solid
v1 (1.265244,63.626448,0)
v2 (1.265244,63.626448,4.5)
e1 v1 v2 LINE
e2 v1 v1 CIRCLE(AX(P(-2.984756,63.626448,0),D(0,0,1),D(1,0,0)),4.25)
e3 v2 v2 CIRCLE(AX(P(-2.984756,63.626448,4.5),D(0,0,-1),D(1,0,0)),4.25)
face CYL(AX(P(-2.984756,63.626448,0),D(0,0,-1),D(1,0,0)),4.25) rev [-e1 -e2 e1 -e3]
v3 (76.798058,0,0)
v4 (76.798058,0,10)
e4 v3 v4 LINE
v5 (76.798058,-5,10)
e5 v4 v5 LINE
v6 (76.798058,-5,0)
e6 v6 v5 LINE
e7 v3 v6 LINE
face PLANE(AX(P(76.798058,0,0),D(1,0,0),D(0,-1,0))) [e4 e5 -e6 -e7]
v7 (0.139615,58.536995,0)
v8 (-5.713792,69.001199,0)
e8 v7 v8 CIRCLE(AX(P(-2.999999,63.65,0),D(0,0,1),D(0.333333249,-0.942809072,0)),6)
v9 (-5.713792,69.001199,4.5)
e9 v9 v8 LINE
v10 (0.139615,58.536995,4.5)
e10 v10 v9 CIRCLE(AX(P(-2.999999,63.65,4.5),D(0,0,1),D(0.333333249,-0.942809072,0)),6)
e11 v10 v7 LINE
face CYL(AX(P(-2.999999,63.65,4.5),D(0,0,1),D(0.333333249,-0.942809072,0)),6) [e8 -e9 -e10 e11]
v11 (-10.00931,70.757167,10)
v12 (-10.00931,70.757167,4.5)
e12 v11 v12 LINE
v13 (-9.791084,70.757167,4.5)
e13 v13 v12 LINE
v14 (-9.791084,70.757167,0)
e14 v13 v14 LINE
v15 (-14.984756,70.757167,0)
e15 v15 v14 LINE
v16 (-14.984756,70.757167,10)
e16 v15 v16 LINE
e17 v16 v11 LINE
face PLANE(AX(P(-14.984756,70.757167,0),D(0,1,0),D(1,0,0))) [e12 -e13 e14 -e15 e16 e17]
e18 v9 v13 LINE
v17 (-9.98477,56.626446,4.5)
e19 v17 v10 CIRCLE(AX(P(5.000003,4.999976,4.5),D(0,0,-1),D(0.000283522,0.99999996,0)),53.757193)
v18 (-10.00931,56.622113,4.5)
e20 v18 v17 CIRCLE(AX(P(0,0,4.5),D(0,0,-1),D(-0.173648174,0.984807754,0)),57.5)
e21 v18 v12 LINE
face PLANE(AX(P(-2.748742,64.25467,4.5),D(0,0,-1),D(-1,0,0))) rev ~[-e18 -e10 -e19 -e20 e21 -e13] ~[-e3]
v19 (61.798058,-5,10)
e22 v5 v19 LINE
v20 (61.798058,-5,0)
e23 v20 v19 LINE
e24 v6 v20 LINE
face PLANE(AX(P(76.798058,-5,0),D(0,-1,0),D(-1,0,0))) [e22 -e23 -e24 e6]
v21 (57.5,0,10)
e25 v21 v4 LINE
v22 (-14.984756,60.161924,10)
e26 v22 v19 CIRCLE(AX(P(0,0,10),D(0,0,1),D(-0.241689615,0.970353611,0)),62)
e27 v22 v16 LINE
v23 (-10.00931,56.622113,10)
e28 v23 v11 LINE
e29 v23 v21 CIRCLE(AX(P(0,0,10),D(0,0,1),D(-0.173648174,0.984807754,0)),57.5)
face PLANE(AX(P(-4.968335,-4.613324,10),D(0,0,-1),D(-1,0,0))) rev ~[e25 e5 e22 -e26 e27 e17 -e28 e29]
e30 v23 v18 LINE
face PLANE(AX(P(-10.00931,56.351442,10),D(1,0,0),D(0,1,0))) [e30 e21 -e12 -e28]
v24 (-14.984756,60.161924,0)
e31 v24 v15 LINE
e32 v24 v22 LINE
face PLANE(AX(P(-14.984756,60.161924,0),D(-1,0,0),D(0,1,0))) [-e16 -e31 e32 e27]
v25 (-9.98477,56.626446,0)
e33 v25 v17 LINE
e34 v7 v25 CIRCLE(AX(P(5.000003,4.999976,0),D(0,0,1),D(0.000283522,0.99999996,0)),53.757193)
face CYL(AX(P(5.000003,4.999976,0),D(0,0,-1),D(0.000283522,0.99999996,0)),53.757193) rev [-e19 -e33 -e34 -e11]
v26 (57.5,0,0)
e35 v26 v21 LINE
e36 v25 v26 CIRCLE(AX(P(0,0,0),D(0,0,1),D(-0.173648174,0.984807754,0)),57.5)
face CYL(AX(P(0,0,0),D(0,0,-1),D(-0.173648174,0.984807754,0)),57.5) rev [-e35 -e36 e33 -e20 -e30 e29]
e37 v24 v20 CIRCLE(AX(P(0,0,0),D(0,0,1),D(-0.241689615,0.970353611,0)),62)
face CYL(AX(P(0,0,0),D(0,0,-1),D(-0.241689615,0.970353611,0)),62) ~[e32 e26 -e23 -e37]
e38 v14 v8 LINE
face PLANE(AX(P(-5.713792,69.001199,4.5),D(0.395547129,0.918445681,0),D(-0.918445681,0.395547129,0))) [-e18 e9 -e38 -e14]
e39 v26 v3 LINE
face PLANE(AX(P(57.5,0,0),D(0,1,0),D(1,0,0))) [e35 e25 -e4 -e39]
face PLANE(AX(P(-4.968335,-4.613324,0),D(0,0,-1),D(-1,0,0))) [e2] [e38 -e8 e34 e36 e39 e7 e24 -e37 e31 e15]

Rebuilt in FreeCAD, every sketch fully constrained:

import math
import FreeCAD as App
import Part
import Sketcher

doc = App.newDocument("Part")
params = doc.addObject("Spreadsheet::Sheet", "Params")
for row, (alias, value) in enumerate([
    ("sketch1_radius", "62 mm"),
    ("sketch1_diameter", "8.5 mm"),
    ("sketch1_radius2", "57.5 mm"),
    ("sketch1_width", "20 mm"),
    ("sketch1_width2", "15 mm"),
    ("pad1_length", "10 mm"),
    ("sketch2_height", "12.5 mm"),
    ("pocket1_length", "5.5 mm"),
    ("sketch3_radius", "6 mm"),
    ("sketch3_width", "7 mm"),
    ("sketch3_width2", "17.5 mm"),
    ("sketch3_height", "13.5 mm"),
    ("sketch3_length", "6.3 mm"),
    ("pocket2_length", "5 mm"),
], start=1):
    params.set(f"A{row}", alias)
    params.set(f"B{row}", "=" + value)
    params.setAlias(f"B{row}", alias)

body = doc.addObject("PartDesign::Body", "Body")

# Sketch on XY plane
sketch1 = body.newObject("Sketcher::SketchObject", "Sketch")
sketch1.AttachmentSupport = (doc.getObject("XY_Plane"), [""])
sketch1.MapMode = "FlatFace"
sketch1.addGeometry([
    Part.ArcOfCircle(Part.Circle(App.Vector(0, 0, 0), App.Vector(0, 0, 1), 57.5), math.radians(100), math.radians(360)),  # 0
    Part.ArcOfCircle(Part.Circle(App.Vector(5.000003, 4.999976, 0), App.Vector(0, 0, 1), 53.757193), math.radians(89.983755), math.radians(106.185565)),  # 1
    Part.LineSegment(App.Vector(5.015244, 58.757167, 0), App.Vector(5.015244, 70.757167, 0)),  # 2
    Part.LineSegment(App.Vector(5.015244, 70.757167, 0), App.Vector(-14.984756, 70.757167, 0)),  # 3
    Part.LineSegment(App.Vector(-14.984756, 70.757167, 0), App.Vector(-14.984756, 60.161924, 0)),  # 4
    Part.ArcOfCircle(Part.Circle(App.Vector(0, 0, 0), App.Vector(0, 0, 1), 62), math.radians(103.986284), math.radians(355.374349)),  # 5
    Part.LineSegment(App.Vector(61.798058, -5, 0), App.Vector(76.798058, -5, 0)),  # 6
    Part.LineSegment(App.Vector(76.798058, -5, 0), App.Vector(76.798058, 0, 0)),  # 7
    Part.LineSegment(App.Vector(76.798058, 0, 0), App.Vector(57.5, 0, 0)),  # 8
    Part.Circle(App.Vector(-2.984756, 63.626448, 0), App.Vector(0, 0, 1), 4.25),  # 9
], False)
sketch1.addConstraint([
    Sketcher.Constraint("Coincident", 0, 1, 1, 2),
    Sketcher.Constraint("Coincident", 1, 1, 2, 1),
    Sketcher.Constraint("Coincident", 2, 2, 3, 1),
    Sketcher.Constraint("Coincident", 3, 2, 4, 1),
    Sketcher.Constraint("Coincident", 4, 2, 5, 1),
    Sketcher.Constraint("Coincident", 5, 2, 6, 1),
    Sketcher.Constraint("Coincident", 6, 2, 7, 1),
    Sketcher.Constraint("Coincident", 7, 2, 8, 1),
    Sketcher.Constraint("Coincident", 8, 2, 0, 2),
    Sketcher.Constraint("Vertical", 2),
    Sketcher.Constraint("Horizontal", 3),
    Sketcher.Constraint("Vertical", 4),
    Sketcher.Constraint("Horizontal", 6),
    Sketcher.Constraint("Vertical", 7),
    Sketcher.Constraint("Horizontal", 8),
    Sketcher.Constraint("Coincident", 0, 3, -1, 1),
    Sketcher.Constraint("Coincident", 5, 3, -1, 1),
    Sketcher.Constraint("PointOnObject", 7, 2, -1),
    Sketcher.Constraint("Radius", 5, 62.0),
    Sketcher.Constraint("Diameter", 9, 8.5),
    Sketcher.Constraint("Radius", 0, 57.5),
    Sketcher.Constraint("DistanceX", 3, 2, 3, 1, 20.0),
    Sketcher.Constraint("DistanceX", 6, 1, 6, 2, 15.0),
    Sketcher.Constraint("DistanceY", 2, 1, 2, 2, 12.0),
    Sketcher.Constraint("DistanceY", 7, 1, 7, 2, 5.0),
    Sketcher.Constraint("DistanceY", 0, 1, 9, 3, 7.000002),
    Sketcher.Constraint("DistanceX", 9, 3, 1, 1, 8.0),
    Sketcher.Constraint("Radius", 1, 53.757193),
    Sketcher.Constraint("DistanceY", 4, 2, 4, 1, 10.595243),
    Sketcher.Constraint("DistanceY", -1, 1, 9, 3, 63.626448),
    Sketcher.Constraint("DistanceX", 9, 3, 1, 3, 7.984759),
])
sketch1.setExpression("Constraints[18]", "Params.sketch1_radius")
sketch1.setExpression("Constraints[19]", "Params.sketch1_diameter")
sketch1.setExpression("Constraints[20]", "Params.sketch1_radius2")
sketch1.setExpression("Constraints[21]", "Params.sketch1_width")
sketch1.setExpression("Constraints[22]", "Params.sketch1_width2")
pad1 = body.newObject("PartDesign::Pad", "Pad")
pad1.Profile = sketch1
pad1.setExpression("Length", "Params.pad1_length")

# Sketch on XY plane
sketch2 = body.newObject("Sketcher::SketchObject", "Sketch001")
sketch2.AttachmentSupport = (doc.getObject("XY_Plane"), [""])
sketch2.MapMode = "FlatFace"
sketch2.AttachmentOffset = App.Placement(App.Vector(0, 0, 10), App.Rotation())
sketch2.addGeometry([
    Part.ArcOfCircle(Part.Circle(App.Vector(5.000001, 5.000011, 0), App.Vector(0, 0, 1), 53.49999), math.radians(89.892906), math.radians(106.292909)),
    Part.LineSegment(App.Vector(5.1, 58.499907, 0), App.Vector(5.1, 70.999907, 0)),
    Part.LineSegment(App.Vector(5.1, 70.999907, 0), App.Vector(-10.00931, 70.999907, 0)),
    Part.LineSegment(App.Vector(-10.00931, 70.999907, 0), App.Vector(-10.00931, 56.351442, 0)),
], False)
sketch2.addConstraint([
    Sketcher.Constraint("Coincident", 0, 1, 1, 1),
    Sketcher.Constraint("Coincident", 1, 2, 2, 1),
    Sketcher.Constraint("Coincident", 2, 2, 3, 1),
    Sketcher.Constraint("Coincident", 3, 2, 0, 2),
    Sketcher.Constraint("Vertical", 1),
    Sketcher.Constraint("Horizontal", 2),
    Sketcher.Constraint("Vertical", 3),
    Sketcher.Constraint("DistanceY", 1, 1, 1, 2, 12.5),
    Sketcher.Constraint("DistanceX", -1, 1, 0, 3, 5.000001),
    Sketcher.Constraint("DistanceX", -1, 1, 0, 1, 5.1),
    Sketcher.Constraint("Radius", 0, 53.49999),
    Sketcher.Constraint("DistanceX", 2, 2, 2, 1, 15.10931),
    Sketcher.Constraint("DistanceY", -1, 1, 0, 3, 5.000011),
])
sketch2.setExpression("Constraints[7]", "Params.sketch2_height")
pocket1 = body.newObject("PartDesign::Pocket", "Pocket")
pocket1.Profile = sketch2
pocket1.setExpression("Length", "Params.pocket1_length")

# Sketch on XY plane
sketch3 = body.newObject("Sketcher::SketchObject", "Sketch002")
sketch3.AttachmentSupport = (doc.getObject("XY_Plane"), [""])
sketch3.MapMode = "FlatFace"
sketch3.AttachmentOffset = App.Placement(App.Vector(0, 0, 4.5), App.Rotation())
sketch3.addGeometry([
    Part.ArcOfCircle(Part.Circle(App.Vector(-2.999999, 63.65, 0), App.Vector(0, 0, 1), 6), math.radians(-70.528785), math.radians(116.891267)),  # 0
    Part.LineSegment(App.Vector(-1, 57.993146, 0), App.Vector(6, 57.993146, 0)),  # 1
    Part.LineSegment(App.Vector(6, 57.993146, 0), App.Vector(6, 71.493146, 0)),  # 2
    Part.LineSegment(App.Vector(6, 71.493146, 0), App.Vector(-11.5, 71.493146, 0)),  # 3
    Part.LineSegment(App.Vector(-11.5, 71.493146, 0), App.Vector(-5.713792, 69.001199, 0)),  # 4
], False)
sketch3.addConstraint([
    Sketcher.Constraint("Coincident", 0, 1, 1, 1),
    Sketcher.Constraint("Coincident", 1, 2, 2, 1),
    Sketcher.Constraint("Coincident", 2, 2, 3, 1),
    Sketcher.Constraint("Coincident", 3, 2, 4, 1),
    Sketcher.Constraint("Coincident", 4, 2, 0, 2),
    Sketcher.Constraint("Horizontal", 1),
    Sketcher.Constraint("Vertical", 2),
    Sketcher.Constraint("Horizontal", 3),
    Sketcher.Constraint("Radius", 0, 6.0),
    Sketcher.Constraint("DistanceX", 1, 1, 1, 2, 7.0),
    Sketcher.Constraint("DistanceX", 3, 2, 3, 1, 17.5),
    Sketcher.Constraint("DistanceY", 2, 1, 2, 2, 13.5),
    Sketcher.Constraint("DistanceX", 0, 3, -1, 1, 2.999999),
    Sketcher.Constraint("DistanceX", 0, 1, -1, 1, 1.0),
    Sketcher.Constraint("Distance", 4, 6.3),
    Sketcher.Constraint("DistanceY", -1, 1, 0, 3, 63.65),
])
sketch3.setExpression("Constraints[8]", "Params.sketch3_radius")
sketch3.setExpression("Constraints[9]", "Params.sketch3_width")
sketch3.setExpression("Constraints[10]", "Params.sketch3_width2")
sketch3.setExpression("Constraints[11]", "Params.sketch3_height")
sketch3.setExpression("Constraints[14]", "Params.sketch3_length")
pocket2 = body.newObject("PartDesign::Pocket", "Pocket001")
pocket2.Profile = sketch3
pocket2.setExpression("Length", "Params.pocket2_length")

doc.recompute()
